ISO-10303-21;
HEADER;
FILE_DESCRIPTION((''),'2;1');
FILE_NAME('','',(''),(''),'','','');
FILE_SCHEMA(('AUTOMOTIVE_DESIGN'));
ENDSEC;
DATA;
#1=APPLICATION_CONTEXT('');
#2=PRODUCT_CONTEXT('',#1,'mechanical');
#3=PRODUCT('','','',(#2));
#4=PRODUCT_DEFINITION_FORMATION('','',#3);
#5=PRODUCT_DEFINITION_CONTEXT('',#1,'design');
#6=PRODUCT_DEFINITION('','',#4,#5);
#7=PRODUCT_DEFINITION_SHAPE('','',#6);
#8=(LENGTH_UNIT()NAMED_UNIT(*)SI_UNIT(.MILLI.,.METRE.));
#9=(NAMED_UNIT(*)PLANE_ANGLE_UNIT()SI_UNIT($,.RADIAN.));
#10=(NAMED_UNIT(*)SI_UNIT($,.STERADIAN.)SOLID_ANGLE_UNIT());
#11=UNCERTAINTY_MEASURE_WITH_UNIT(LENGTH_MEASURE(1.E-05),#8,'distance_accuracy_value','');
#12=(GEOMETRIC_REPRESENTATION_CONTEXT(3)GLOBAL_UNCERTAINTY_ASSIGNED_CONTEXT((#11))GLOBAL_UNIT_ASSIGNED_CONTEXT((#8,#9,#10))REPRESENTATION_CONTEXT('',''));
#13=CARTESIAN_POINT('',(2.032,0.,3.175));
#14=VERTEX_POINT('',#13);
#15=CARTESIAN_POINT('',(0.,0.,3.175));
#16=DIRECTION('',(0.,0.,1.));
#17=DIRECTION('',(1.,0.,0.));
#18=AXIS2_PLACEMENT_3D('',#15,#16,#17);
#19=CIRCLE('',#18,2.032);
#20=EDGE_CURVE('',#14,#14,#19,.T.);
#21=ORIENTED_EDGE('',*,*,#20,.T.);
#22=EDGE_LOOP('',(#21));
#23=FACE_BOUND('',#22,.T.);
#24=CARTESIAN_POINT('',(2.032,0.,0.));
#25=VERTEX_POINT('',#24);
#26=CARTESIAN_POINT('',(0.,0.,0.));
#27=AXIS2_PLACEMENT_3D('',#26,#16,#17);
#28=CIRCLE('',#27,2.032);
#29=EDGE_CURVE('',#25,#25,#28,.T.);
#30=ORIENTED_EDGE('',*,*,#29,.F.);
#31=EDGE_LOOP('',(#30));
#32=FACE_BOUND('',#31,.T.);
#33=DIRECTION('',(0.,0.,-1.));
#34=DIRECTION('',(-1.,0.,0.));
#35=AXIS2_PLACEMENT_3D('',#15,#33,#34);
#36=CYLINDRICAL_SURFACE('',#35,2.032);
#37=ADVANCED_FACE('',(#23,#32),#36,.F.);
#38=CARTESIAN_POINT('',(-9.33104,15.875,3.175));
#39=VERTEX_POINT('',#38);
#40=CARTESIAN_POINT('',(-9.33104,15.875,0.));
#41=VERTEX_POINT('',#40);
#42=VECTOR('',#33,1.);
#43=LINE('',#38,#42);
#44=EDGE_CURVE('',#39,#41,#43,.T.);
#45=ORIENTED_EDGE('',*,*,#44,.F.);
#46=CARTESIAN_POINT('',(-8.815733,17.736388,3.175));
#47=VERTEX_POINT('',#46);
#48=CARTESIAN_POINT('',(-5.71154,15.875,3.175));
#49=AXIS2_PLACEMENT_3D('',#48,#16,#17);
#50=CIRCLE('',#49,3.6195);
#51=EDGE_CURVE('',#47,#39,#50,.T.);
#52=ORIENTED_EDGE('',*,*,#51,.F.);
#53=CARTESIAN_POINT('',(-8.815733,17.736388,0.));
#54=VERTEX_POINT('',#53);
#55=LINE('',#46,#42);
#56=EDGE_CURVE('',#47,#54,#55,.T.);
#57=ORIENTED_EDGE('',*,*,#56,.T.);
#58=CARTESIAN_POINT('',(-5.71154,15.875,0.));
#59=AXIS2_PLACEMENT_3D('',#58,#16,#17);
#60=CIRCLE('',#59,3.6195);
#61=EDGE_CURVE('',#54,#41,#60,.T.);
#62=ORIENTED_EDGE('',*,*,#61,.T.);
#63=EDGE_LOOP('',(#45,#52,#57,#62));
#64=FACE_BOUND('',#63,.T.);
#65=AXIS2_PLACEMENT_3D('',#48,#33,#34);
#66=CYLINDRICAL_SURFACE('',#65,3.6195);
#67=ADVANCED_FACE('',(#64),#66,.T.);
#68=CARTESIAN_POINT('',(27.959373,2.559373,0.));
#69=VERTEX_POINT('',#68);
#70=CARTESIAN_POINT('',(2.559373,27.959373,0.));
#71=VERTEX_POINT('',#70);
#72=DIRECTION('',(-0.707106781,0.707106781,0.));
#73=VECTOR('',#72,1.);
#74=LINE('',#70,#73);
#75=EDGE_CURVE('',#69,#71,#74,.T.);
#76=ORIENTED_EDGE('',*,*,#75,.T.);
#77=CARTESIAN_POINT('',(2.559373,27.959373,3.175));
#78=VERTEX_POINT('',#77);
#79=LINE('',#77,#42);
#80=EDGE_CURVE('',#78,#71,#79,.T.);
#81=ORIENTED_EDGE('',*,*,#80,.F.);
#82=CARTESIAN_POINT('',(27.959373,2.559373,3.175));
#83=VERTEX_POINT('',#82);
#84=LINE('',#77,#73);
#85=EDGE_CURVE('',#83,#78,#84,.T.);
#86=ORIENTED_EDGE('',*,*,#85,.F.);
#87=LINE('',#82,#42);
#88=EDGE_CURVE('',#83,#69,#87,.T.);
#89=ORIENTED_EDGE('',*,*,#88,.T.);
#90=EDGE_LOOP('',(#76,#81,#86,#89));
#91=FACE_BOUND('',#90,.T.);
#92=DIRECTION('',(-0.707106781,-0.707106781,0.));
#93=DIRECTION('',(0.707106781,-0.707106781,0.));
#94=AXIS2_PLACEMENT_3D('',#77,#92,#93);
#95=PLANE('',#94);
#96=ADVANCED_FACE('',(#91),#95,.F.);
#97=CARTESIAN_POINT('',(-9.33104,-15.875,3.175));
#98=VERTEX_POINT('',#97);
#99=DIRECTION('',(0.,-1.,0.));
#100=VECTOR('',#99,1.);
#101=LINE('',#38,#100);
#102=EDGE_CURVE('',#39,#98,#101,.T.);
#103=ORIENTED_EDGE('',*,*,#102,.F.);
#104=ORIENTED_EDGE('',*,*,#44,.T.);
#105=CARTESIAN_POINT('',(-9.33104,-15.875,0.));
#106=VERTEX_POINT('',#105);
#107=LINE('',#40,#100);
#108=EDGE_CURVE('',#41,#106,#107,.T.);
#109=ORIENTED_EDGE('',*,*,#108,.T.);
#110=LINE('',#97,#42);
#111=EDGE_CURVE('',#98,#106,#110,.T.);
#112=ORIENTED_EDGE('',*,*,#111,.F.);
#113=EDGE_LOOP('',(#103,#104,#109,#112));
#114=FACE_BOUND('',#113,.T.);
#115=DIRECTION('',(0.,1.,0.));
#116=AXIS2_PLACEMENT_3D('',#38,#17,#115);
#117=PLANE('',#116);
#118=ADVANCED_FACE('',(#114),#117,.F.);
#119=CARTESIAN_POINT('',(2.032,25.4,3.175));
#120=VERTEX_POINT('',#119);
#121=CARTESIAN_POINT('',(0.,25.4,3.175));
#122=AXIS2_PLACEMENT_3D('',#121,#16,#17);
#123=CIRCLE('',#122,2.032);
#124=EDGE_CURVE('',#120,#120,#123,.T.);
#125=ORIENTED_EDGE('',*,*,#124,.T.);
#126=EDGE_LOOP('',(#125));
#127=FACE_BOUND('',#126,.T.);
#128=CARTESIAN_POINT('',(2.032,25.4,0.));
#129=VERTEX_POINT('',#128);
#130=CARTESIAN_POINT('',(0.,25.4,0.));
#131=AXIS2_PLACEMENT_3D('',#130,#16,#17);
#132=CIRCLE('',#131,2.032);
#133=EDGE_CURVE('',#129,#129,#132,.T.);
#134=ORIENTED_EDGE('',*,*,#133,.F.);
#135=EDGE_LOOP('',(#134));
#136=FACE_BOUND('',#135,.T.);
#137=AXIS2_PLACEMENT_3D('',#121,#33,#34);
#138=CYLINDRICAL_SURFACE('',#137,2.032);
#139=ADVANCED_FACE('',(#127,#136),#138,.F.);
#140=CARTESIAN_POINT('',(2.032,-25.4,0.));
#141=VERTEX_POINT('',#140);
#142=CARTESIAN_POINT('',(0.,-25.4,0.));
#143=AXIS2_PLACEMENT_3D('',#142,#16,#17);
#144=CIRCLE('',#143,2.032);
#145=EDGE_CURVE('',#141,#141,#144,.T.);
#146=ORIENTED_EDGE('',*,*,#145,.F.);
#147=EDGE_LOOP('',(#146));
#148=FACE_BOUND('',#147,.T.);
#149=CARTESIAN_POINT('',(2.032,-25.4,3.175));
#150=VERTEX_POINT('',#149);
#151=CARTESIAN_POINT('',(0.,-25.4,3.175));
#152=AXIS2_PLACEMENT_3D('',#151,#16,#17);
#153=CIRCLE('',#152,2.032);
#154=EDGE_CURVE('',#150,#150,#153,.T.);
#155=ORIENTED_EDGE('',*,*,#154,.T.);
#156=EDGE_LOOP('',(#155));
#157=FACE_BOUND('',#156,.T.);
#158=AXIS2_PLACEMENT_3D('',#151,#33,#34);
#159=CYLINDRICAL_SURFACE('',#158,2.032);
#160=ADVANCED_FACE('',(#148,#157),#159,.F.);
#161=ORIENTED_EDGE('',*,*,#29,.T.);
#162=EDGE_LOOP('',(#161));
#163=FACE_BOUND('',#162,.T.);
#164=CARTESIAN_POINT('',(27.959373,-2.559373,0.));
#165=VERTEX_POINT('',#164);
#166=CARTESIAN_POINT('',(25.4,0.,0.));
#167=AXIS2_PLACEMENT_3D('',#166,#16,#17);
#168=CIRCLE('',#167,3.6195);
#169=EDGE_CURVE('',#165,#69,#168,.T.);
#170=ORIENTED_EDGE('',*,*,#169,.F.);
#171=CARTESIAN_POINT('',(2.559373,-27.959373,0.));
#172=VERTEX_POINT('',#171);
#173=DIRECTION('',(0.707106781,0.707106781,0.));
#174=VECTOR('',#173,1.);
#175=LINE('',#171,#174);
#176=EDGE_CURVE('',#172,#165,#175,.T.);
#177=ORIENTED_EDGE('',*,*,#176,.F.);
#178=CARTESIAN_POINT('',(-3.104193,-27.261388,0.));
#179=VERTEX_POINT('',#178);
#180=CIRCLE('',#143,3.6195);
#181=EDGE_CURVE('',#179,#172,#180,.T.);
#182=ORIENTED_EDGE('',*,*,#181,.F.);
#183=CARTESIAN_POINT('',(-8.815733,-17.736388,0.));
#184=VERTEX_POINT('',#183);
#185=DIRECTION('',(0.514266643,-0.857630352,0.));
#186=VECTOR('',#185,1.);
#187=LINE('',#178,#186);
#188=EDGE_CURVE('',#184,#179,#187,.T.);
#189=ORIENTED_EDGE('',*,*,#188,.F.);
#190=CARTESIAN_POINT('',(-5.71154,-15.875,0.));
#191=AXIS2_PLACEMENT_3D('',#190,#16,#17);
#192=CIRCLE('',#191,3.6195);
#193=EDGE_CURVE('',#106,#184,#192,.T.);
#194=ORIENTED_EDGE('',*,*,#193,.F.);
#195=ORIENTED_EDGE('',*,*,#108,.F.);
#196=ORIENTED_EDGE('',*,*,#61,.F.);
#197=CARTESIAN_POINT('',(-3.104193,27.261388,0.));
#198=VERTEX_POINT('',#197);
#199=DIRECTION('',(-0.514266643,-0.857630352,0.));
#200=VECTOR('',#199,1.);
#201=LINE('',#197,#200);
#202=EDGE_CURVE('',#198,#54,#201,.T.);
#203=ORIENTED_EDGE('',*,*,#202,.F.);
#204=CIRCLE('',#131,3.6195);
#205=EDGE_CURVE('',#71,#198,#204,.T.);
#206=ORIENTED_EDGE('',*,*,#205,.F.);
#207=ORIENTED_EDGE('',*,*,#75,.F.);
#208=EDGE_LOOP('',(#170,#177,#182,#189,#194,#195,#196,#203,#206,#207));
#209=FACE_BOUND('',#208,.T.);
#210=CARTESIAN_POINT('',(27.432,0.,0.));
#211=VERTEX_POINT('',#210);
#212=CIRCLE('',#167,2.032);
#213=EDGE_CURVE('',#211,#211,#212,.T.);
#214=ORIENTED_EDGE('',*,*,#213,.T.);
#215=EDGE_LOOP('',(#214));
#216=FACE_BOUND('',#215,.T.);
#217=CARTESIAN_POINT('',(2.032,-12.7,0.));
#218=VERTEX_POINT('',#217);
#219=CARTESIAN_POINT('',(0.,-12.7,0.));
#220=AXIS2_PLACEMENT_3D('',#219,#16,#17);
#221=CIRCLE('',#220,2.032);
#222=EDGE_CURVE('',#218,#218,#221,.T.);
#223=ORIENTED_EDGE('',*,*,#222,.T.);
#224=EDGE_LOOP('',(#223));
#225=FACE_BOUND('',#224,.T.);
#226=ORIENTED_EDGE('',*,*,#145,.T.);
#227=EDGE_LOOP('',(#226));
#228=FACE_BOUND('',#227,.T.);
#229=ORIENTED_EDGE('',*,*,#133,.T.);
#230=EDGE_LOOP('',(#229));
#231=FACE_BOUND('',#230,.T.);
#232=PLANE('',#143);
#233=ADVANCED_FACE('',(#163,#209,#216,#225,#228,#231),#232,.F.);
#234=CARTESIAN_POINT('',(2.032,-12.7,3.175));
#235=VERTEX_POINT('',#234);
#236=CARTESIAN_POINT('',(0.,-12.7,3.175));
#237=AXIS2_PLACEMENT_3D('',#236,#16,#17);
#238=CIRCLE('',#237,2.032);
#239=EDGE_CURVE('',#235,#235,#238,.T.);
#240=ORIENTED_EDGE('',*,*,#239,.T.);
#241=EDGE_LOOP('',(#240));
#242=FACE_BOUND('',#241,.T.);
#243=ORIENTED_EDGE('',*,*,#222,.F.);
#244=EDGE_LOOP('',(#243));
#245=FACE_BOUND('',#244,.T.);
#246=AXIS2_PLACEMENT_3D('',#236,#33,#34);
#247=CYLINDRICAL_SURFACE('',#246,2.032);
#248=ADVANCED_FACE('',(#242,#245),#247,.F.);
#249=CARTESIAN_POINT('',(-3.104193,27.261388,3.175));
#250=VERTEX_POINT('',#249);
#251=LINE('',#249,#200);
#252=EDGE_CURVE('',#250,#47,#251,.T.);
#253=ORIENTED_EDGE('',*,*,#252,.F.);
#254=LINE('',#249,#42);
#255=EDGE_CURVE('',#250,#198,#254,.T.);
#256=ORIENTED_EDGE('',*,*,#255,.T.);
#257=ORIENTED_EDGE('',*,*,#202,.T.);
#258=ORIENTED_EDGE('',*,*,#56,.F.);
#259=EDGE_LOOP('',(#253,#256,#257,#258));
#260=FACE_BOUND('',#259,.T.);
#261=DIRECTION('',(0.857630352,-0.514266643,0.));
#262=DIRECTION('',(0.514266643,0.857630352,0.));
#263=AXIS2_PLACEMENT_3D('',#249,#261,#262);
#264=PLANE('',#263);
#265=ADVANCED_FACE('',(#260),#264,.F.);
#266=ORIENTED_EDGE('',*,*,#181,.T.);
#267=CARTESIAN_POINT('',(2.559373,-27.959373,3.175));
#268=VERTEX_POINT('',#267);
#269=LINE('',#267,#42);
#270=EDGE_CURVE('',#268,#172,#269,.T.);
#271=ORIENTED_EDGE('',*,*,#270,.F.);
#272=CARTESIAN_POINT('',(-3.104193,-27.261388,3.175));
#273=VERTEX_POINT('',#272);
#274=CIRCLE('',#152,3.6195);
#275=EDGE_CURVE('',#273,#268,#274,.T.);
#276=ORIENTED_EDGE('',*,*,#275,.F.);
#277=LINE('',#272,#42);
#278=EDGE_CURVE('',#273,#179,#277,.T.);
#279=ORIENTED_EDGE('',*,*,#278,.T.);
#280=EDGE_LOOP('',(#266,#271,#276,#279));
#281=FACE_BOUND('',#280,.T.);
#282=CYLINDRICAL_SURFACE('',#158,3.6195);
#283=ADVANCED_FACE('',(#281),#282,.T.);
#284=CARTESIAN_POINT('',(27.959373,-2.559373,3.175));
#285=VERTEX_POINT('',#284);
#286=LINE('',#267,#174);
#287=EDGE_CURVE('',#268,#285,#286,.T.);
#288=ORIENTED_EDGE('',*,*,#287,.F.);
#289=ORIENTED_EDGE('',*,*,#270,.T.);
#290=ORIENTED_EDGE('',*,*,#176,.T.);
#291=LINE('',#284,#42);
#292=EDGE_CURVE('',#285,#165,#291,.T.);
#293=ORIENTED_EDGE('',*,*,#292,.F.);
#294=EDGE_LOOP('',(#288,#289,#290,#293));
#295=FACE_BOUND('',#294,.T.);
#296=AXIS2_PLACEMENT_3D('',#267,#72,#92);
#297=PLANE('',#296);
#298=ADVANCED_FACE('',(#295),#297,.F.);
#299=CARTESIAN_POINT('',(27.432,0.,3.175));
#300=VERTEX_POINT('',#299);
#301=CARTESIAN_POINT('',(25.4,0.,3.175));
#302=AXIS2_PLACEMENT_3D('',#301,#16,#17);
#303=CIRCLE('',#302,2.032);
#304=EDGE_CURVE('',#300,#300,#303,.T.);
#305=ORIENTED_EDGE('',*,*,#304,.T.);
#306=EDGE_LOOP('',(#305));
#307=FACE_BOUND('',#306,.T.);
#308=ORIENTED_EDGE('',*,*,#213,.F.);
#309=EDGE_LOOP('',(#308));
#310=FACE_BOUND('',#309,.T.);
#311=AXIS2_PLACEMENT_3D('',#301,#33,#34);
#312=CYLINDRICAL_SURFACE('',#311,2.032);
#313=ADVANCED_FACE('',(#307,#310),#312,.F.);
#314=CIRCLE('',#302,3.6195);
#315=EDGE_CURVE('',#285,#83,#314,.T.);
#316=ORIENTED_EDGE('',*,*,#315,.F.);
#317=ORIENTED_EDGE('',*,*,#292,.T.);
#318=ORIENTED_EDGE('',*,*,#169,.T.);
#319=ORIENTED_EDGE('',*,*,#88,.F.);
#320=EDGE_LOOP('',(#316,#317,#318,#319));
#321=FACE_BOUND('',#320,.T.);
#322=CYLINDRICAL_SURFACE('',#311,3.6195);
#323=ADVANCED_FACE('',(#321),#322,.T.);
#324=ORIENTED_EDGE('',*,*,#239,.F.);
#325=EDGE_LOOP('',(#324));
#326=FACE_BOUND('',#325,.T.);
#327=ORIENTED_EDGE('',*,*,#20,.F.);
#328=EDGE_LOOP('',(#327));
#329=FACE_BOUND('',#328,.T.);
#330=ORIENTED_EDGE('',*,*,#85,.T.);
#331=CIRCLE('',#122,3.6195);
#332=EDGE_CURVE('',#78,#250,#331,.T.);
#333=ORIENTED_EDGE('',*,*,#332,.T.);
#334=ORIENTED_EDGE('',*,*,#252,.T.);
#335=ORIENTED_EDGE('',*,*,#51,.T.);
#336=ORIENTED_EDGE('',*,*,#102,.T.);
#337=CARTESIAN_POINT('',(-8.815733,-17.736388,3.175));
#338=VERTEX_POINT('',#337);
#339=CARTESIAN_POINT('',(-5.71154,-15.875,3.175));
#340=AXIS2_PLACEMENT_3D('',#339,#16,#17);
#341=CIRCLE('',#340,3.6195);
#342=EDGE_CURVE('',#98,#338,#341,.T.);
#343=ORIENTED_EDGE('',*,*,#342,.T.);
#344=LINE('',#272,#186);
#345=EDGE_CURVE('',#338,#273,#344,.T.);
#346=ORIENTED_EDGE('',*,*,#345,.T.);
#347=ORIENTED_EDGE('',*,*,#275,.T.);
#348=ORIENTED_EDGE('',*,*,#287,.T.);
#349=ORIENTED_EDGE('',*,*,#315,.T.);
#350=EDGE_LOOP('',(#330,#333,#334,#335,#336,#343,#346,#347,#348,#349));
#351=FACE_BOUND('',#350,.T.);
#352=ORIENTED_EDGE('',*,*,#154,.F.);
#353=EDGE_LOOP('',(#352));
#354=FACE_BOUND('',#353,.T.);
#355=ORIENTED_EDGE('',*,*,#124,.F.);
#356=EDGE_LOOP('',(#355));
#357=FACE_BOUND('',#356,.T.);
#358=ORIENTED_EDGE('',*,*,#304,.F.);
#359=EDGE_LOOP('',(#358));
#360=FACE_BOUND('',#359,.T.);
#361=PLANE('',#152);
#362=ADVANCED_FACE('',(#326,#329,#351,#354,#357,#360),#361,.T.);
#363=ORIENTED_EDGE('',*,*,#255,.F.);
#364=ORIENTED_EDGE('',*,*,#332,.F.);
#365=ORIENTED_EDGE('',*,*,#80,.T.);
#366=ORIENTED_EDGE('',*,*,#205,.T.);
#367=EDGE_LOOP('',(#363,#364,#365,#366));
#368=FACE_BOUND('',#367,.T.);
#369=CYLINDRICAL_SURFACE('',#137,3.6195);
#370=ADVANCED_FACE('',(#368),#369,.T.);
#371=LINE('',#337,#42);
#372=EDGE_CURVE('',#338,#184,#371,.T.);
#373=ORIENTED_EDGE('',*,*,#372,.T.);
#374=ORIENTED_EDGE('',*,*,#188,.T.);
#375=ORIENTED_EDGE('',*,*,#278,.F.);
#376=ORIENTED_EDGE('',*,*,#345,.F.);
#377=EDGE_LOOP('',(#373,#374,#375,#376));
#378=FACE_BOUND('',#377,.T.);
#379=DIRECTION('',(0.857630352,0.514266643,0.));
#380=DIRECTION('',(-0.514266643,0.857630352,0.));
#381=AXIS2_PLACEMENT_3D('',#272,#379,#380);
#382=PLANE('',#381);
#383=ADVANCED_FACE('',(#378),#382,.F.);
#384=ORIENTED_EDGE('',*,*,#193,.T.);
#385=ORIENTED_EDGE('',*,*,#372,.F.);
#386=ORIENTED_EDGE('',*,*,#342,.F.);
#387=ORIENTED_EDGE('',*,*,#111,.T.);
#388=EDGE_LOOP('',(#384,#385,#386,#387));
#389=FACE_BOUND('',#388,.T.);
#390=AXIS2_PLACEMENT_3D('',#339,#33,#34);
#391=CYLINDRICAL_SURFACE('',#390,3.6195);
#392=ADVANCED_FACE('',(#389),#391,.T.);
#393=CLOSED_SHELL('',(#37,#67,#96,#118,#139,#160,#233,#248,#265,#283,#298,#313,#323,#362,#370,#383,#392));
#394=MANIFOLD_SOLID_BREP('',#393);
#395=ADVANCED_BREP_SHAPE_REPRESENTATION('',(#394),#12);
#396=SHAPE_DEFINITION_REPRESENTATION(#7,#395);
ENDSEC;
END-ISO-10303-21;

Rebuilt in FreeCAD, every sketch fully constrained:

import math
import FreeCAD as App
import Part
import Sketcher

V = App.Vector
Q = App.Units.Quantity

doc = App.newDocument("Part")
body = doc.addObject("PartDesign::Body", "Body")

sketch1 = body.newObject("Sketcher::SketchObject", "Sketch")
sketch1.AttachmentSupport = (doc.getObject("XY_Plane"), [""])
sketch1.MapMode = "FlatFace"
sketch1.addGeometry(Part.LineSegment(V(28, 2.6, 0), V(2.6, 28, 0)), False)
sketch1.addGeometry(Part.ArcOfCircle(Part.Circle(V(0, 25.4, 0), V(0, 0, 1), 3.6), math.radians(45), math.radians(149)), False)
sketch1.addGeometry(Part.LineSegment(V(-3.1, 27.3, 0), V(-8.8, 17.7, 0)), False)
sketch1.addGeometry(Part.ArcOfCircle(Part.Circle(V(-5.7, 15.9, 0), V(0, 0, 1), 3.6), math.radians(149), math.radians(180)), False)
sketch1.addGeometry(Part.LineSegment(V(-9.3, 15.9, 0), V(-9.3, -15.9, 0)), False)
sketch1.addGeometry(Part.ArcOfCircle(Part.Circle(V(-5.7, -15.9, 0), V(0, 0, 1), 3.6), math.radians(180), math.radians(211)), False)
sketch1.addGeometry(Part.LineSegment(V(-8.8, -17.7, 0), V(-3.1, -27.3, 0)), False)
sketch1.addGeometry(Part.ArcOfCircle(Part.Circle(V(0, -25.4, 0), V(0, 0, 1), 3.6), math.radians(-149), math.radians(-45)), False)
sketch1.addGeometry(Part.LineSegment(V(2.6, -28, 0), V(28, -2.6, 0)), False)
sketch1.addGeometry(Part.ArcOfCircle(Part.Circle(V(25.4, 0, 0), V(0, 0, 1), 3.6), math.radians(-45), math.radians(45)), False)
sketch1.addGeometry(Part.Circle(V(0, -25.4, 0), V(0, 0, 1), 2), False)
sketch1.addGeometry(Part.Circle(V(0, -12.7, 0), V(0, 0, 1), 2), False)
sketch1.addGeometry(Part.Circle(V(25.4, 0, 0), V(0, 0, 1), 2), False)
sketch1.addGeometry(Part.Circle(V(0, 0, 0), V(0, 0, 1), 2), False)
sketch1.addGeometry(Part.Circle(V(0, 25.4, 0), V(0, 0, 1), 2), False)
sketch1.addConstraint(Sketcher.Constraint("Tangent", 0, 2, 1, 1))
sketch1.addConstraint(Sketcher.Constraint("Tangent", 1, 2, 2, 1))
sketch1.addConstraint(Sketcher.Constraint("Tangent", 2, 2, 3, 1))
sketch1.addConstraint(Sketcher.Constraint("Tangent", 3, 2, 4, 1))
sketch1.addConstraint(Sketcher.Constraint("Tangent", 4, 2, 5, 1))
sketch1.addConstraint(Sketcher.Constraint("Tangent", 5, 2, 6, 1))
sketch1.addConstraint(Sketcher.Constraint("Tangent", 6, 2, 7, 1))
sketch1.addConstraint(Sketcher.Constraint("Tangent", 7, 2, 8, 1))
sketch1.addConstraint(Sketcher.Constraint("Tangent", 8, 2, 9, 1))
sketch1.addConstraint(Sketcher.Constraint("Tangent", 9, 2, 0, 1))
sketch1.addConstraint(Sketcher.Constraint("Vertical", 4))
sketch1.addConstraint(Sketcher.Constraint("Coincident", 13, 3, -1, 1))
sketch1.addConstraint(Sketcher.Constraint("Coincident", 10, 3, 7, 3))
sketch1.addConstraint(Sketcher.Constraint("Coincident", 12, 3, 9, 3))
sketch1.addConstraint(Sketcher.Constraint("Coincident", 14, 3, 1, 3))
sketch1.addConstraint(Sketcher.Constraint("Equal", 1, 3))
sketch1.addConstraint(Sketcher.Constraint("Equal", 3, 5))
sketch1.addConstraint(Sketcher.Constraint("Equal", 5, 7))
sketch1.addConstraint(Sketcher.Constraint("Equal", 7, 9))
sketch1.addConstraint(Sketcher.Constraint("Equal", 10, 11))
sketch1.addConstraint(Sketcher.Constraint("Equal", 11, 12))
sketch1.addConstraint(Sketcher.Constraint("Equal", 12, 13))
sketch1.addConstraint(Sketcher.Constraint("Equal", 13, 14))
sketch1.addConstraint(Sketcher.Constraint("Symmetric", 1, 3, 7, 3, -1, 1))
sketch1.addConstraint(Sketcher.Constraint("Symmetric", 2, 2, 5, 2, -1))
sketch1.addConstraint(Sketcher.Constraint("PointOnObject", 9, 3, -1))
sketch1.addConstraint(Sketcher.Constraint("PointOnObject", 11, 3, -2))
sketch1.addConstraint(Sketcher.Constraint("Perpendicular", 0, 8))
sketch1.addConstraint(Sketcher.Constraint("Diameter", 10, Q("0.16 in")))
sketch1.addConstraint(Sketcher.Constraint("DistanceY", -1, 1, 1, 3, Q("1 in")))
sketch1.addConstraint(Sketcher.Constraint("DistanceY", 4, 2, 4, 1, Q("1.25 in")))
sketch1.addConstraint(Sketcher.Constraint("DistanceY", 11, 3, -1, 1, Q("0.5 in")))
sketch1.addConstraint(Sketcher.Constraint("Radius", 1, Q("0.1425 in")))
sketch1.addConstraint(Sketcher.Constraint("DistanceX", 3, 3, -1, 1, 5.71154))
pad1 = body.newObject("PartDesign::Pad", "Pad")
pad1.Profile = sketch1
pad1.Length = Q("0.125 in")

doc.recompute()
